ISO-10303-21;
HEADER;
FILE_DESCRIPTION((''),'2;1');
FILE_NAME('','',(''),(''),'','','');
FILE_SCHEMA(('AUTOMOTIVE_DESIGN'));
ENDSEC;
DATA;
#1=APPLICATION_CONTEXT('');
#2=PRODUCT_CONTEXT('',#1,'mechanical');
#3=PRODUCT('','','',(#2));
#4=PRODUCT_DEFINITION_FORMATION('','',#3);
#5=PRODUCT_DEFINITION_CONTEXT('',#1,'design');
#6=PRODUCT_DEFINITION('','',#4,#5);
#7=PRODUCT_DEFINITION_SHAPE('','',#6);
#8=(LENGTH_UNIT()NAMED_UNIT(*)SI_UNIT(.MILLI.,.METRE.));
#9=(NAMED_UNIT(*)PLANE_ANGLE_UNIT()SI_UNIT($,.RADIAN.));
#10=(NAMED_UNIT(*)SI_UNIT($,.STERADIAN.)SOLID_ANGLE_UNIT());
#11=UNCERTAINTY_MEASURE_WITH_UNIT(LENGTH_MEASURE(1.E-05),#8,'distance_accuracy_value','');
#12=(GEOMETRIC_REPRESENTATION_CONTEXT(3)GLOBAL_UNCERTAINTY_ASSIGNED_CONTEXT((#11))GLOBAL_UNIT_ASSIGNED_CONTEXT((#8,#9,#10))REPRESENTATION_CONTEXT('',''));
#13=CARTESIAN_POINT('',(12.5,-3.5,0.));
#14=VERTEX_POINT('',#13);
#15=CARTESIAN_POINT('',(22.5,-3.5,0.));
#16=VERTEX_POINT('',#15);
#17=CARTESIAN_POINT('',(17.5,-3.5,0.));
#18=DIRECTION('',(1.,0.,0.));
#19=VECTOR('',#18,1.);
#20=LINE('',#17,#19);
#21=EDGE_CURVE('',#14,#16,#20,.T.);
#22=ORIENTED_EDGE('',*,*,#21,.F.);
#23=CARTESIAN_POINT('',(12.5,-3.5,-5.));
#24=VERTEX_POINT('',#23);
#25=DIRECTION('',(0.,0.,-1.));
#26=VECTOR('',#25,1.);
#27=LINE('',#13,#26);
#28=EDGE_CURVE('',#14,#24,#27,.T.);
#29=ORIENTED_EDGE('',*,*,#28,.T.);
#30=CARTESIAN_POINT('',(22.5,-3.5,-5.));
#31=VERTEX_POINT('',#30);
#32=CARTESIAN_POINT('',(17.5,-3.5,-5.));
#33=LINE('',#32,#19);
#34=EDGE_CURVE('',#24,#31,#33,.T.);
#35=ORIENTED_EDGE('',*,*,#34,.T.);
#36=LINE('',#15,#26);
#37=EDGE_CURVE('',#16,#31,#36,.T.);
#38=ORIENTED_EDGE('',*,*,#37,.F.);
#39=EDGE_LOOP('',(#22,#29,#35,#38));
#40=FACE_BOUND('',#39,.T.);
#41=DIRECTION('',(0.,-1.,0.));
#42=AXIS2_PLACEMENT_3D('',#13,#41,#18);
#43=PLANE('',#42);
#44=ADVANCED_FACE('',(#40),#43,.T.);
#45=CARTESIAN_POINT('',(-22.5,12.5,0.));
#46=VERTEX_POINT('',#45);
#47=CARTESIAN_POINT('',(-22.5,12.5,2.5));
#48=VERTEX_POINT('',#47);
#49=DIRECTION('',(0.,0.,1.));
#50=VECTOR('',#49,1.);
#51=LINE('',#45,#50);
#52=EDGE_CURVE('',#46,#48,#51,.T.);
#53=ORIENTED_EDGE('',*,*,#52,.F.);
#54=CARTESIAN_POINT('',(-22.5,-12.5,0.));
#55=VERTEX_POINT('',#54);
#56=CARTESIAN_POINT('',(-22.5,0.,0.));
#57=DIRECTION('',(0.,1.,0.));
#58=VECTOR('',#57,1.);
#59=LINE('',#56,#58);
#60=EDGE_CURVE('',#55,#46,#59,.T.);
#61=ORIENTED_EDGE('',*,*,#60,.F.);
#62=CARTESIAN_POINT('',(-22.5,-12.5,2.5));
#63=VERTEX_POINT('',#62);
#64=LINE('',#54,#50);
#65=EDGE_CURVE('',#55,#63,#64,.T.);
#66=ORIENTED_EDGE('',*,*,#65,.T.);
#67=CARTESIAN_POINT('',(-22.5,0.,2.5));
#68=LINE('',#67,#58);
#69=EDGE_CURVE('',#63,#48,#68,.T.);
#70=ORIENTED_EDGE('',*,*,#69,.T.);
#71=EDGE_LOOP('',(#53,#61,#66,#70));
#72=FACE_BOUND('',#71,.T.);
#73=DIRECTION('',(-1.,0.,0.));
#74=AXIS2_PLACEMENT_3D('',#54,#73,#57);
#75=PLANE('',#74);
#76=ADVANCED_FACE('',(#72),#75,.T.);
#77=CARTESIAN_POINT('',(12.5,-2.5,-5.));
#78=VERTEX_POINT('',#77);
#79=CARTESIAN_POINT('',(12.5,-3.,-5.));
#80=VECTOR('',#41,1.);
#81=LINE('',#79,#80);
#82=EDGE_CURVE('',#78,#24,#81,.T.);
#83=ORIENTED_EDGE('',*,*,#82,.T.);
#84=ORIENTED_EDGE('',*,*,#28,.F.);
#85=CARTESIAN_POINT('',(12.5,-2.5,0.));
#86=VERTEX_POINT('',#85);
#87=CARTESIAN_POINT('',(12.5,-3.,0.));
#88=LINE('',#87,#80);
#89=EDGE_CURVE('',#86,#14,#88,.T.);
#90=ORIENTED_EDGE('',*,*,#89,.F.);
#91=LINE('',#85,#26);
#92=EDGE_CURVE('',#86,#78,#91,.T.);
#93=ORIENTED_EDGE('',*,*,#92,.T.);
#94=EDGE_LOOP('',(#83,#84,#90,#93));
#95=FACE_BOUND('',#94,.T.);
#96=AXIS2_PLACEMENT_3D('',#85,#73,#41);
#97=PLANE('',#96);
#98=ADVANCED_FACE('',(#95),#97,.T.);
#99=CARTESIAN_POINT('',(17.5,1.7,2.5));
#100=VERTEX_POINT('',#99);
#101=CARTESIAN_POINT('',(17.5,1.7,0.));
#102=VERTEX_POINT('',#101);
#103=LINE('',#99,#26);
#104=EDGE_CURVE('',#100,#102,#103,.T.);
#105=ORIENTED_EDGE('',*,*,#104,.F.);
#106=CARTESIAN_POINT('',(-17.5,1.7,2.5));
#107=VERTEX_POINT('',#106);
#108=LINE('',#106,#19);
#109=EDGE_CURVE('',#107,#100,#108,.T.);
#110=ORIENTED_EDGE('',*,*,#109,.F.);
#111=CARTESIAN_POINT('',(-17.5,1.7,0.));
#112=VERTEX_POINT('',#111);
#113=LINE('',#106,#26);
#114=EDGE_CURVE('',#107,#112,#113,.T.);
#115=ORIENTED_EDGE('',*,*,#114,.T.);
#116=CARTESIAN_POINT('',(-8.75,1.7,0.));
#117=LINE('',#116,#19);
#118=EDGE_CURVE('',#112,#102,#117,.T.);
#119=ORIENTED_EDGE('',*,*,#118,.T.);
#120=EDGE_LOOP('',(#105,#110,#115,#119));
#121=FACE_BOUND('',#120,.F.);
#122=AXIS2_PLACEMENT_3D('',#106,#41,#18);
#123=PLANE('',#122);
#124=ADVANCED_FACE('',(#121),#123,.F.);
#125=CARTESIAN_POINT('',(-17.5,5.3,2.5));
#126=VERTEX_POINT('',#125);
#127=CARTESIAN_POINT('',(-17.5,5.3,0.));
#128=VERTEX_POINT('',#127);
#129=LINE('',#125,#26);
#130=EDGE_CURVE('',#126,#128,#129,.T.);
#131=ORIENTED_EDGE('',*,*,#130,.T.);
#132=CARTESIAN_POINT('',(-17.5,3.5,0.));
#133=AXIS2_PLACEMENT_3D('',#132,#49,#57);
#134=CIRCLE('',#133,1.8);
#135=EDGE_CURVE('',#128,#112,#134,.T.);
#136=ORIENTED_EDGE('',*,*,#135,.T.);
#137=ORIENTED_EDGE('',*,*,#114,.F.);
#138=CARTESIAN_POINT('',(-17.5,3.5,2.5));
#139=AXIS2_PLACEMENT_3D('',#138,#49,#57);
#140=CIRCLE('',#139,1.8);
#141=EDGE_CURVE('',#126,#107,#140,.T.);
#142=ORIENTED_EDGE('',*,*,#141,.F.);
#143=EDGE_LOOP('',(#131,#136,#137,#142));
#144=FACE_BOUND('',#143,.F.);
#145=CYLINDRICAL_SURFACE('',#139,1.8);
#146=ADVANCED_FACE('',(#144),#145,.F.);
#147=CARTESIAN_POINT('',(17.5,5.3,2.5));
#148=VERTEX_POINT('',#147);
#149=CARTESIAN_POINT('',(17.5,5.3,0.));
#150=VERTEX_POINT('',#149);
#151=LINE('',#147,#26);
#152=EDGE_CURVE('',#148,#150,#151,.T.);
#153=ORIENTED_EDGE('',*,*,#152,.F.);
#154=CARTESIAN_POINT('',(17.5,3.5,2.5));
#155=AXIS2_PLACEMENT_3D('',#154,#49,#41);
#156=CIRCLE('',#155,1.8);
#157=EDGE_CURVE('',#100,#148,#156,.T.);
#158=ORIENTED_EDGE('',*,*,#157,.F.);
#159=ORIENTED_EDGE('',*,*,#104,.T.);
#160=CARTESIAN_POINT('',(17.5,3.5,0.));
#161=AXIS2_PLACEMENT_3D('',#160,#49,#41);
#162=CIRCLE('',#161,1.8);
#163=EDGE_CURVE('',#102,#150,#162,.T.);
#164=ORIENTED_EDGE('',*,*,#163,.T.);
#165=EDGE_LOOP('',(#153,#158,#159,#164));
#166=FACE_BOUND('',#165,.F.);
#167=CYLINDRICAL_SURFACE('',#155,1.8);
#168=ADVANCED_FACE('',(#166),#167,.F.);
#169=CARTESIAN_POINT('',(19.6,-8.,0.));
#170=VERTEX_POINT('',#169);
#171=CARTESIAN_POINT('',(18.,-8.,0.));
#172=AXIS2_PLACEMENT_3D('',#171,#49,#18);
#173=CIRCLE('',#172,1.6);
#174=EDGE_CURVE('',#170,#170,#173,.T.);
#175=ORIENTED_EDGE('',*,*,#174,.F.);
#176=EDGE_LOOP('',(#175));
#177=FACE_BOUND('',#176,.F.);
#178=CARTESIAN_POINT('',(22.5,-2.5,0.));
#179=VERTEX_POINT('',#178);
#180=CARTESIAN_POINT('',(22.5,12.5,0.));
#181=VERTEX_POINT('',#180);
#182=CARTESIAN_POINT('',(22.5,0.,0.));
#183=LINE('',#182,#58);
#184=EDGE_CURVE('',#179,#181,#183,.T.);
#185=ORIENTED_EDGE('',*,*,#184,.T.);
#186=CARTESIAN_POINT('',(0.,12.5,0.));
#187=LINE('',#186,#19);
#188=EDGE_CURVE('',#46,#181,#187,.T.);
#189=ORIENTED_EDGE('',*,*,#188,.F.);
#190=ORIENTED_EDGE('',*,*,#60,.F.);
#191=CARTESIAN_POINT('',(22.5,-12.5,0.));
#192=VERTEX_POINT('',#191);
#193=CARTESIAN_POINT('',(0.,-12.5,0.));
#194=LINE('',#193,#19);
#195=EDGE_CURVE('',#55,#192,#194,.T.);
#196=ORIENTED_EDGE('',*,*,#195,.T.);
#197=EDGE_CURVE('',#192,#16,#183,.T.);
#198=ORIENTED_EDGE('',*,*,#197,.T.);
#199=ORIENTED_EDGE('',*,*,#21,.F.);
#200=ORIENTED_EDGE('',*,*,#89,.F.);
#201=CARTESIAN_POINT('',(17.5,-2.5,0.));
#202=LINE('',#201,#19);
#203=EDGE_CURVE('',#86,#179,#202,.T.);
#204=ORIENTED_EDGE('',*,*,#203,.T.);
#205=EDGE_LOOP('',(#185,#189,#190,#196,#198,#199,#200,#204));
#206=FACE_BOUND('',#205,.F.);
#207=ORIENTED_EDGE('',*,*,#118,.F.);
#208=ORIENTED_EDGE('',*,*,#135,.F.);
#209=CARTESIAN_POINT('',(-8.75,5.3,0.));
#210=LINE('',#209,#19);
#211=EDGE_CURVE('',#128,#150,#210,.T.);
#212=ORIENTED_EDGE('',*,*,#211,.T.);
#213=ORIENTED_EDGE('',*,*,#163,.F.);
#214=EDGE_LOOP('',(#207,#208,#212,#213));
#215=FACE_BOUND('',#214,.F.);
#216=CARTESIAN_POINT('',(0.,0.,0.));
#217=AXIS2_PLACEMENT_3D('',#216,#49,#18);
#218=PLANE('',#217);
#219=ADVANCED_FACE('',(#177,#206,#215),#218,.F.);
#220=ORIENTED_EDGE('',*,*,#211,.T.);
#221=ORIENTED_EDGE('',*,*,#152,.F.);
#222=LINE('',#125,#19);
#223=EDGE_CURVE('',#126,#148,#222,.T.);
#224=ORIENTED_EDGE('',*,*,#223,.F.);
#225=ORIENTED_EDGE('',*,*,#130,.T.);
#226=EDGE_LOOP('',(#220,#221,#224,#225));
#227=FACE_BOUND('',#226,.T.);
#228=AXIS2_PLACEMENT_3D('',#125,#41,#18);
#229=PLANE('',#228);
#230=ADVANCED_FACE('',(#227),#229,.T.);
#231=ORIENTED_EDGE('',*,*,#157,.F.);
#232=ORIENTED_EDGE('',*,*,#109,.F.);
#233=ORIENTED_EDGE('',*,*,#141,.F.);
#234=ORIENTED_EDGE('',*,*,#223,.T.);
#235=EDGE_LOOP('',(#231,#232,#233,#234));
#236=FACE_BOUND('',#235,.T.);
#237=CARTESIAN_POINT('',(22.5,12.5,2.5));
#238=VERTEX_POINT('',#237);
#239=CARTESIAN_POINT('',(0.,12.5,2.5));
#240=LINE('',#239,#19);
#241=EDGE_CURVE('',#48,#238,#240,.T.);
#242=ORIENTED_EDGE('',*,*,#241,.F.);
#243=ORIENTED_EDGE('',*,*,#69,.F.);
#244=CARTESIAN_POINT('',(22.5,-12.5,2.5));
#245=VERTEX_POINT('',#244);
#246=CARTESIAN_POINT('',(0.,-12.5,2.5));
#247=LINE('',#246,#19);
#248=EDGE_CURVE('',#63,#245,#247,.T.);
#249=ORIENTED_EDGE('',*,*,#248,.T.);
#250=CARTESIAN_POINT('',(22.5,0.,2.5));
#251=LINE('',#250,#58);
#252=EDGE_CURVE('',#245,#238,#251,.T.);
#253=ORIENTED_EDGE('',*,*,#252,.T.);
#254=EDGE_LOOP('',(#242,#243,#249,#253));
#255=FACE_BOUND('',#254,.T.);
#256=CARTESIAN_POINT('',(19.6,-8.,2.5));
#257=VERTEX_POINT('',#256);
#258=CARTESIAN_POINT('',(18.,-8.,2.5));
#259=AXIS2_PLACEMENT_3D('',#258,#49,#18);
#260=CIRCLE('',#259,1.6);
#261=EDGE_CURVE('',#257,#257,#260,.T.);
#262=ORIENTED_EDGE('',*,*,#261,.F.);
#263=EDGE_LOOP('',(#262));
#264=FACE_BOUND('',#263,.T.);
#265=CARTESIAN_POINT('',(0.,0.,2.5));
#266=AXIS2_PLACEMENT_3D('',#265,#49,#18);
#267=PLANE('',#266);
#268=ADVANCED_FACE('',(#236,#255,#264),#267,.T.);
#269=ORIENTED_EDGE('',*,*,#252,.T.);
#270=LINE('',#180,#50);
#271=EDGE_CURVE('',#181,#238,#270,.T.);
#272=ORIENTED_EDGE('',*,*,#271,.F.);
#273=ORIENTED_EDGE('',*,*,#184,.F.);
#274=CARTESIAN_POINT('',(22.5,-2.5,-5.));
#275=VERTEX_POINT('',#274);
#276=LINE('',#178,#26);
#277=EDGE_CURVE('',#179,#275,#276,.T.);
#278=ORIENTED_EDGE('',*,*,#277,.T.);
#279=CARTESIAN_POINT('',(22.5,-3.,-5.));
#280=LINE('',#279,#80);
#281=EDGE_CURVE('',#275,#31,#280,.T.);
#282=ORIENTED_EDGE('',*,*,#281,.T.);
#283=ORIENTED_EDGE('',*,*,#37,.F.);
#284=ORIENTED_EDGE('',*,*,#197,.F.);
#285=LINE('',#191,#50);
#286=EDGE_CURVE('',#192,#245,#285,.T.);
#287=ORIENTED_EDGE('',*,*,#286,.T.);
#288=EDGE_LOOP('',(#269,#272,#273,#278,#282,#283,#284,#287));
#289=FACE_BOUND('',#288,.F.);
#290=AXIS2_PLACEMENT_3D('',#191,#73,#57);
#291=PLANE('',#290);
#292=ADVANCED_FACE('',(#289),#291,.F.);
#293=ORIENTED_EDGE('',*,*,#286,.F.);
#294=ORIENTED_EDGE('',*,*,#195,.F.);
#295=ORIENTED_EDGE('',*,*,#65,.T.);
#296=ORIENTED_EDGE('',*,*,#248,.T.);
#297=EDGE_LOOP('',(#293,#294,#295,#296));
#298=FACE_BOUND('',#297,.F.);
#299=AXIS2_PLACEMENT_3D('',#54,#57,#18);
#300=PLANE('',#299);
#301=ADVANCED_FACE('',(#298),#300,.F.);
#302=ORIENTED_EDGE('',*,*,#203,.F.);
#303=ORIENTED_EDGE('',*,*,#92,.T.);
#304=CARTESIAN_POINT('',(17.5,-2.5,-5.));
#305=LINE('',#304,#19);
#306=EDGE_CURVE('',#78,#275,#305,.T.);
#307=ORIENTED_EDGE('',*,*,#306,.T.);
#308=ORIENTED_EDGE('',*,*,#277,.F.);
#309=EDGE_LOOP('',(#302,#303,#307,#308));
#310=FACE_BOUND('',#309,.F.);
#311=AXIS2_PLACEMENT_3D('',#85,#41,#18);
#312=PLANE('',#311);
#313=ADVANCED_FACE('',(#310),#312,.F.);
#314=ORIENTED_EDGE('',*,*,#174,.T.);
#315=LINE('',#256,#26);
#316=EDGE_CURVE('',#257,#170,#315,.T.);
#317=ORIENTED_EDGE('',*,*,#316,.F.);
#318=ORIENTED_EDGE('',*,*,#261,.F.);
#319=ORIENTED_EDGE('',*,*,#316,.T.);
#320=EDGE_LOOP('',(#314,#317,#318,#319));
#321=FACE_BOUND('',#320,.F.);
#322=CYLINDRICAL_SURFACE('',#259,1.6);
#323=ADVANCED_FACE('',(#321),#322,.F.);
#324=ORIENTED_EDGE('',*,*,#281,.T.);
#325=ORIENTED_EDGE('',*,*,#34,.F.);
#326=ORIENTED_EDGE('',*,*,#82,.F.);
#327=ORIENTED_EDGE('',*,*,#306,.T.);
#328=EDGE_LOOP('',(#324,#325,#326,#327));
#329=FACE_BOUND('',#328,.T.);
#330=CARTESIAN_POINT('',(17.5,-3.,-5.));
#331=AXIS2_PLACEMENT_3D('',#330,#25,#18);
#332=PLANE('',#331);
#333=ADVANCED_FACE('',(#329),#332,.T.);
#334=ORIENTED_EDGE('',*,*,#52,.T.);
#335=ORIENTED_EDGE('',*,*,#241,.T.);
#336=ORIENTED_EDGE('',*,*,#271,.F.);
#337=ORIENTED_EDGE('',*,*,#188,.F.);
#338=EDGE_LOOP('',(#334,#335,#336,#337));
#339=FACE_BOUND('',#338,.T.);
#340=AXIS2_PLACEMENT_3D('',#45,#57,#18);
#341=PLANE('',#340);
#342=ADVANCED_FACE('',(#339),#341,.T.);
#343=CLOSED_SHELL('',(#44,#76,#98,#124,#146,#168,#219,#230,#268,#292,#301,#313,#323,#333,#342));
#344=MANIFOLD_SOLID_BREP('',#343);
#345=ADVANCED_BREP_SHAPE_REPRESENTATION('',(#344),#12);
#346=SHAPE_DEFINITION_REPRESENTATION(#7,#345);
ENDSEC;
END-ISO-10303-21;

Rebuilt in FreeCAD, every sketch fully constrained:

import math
import FreeCAD as App
import Part
import Sketcher
from FreeCAD import Vector

doc = App.newDocument("Part")
body = doc.addObject("PartDesign::Body", "Body")

sketch1 = doc.addObject("Sketcher::SketchObject", "Sketch")
body.addObject(sketch1)
sketch1.AttachmentSupport = (doc.XY_Plane, [""])
sketch1.MapMode = "FlatFace"
sketch1.addGeometry(Part.LineSegment(Vector(-22.5, 12.5, 0), Vector(-22.5, -12.5, 0)), False)
sketch1.addGeometry(Part.LineSegment(Vector(-22.5, -12.5, 0), Vector(22.5, -12.5, 0)), False)
sketch1.addGeometry(Part.LineSegment(Vector(22.5, -12.5, 0), Vector(22.5, 12.5, 0)), False)
sketch1.addGeometry(Part.LineSegment(Vector(22.5, 12.5, 0), Vector(-22.5, 12.5, 0)), False)
sketch1.addConstraint(Sketcher.Constraint("Coincident", 0, 2, 1, 1))
sketch1.addConstraint(Sketcher.Constraint("Coincident", 1, 2, 2, 1))
sketch1.addConstraint(Sketcher.Constraint("Coincident", 2, 2, 3, 1))
sketch1.addConstraint(Sketcher.Constraint("Coincident", 3, 2, 0, 1))
sketch1.addConstraint(Sketcher.Constraint("Vertical", 0))
sketch1.addConstraint(Sketcher.Constraint("Horizontal", 1))
sketch1.addConstraint(Sketcher.Constraint("Vertical", 2))
sketch1.addConstraint(Sketcher.Constraint("Horizontal", 3))
sketch1.addConstraint(Sketcher.Constraint("Symmetric", 0, 2, 2, 2, -1, 1))
sketch1.addConstraint(Sketcher.Constraint("DistanceX", 1, 1, 1, 2, 45.0))
sketch1.addConstraint(Sketcher.Constraint("DistanceY", 0, 2, 0, 1, 25.0))
pad1 = doc.addObject("PartDesign::Pad", "Pad")
body.addObject(pad1)
pad1.Profile = sketch1
pad1.Length = 2.5

sketch2 = doc.addObject("Sketcher::SketchObject", "Sketch001")
body.addObject(sketch2)
sketch2.AttachmentSupport = (doc.XY_Plane, [""])
sketch2.MapMode = "FlatFace"
sketch2.AttachmentOffset = App.Placement(Vector(0, 0, 2.5), App.Rotation())
sketch2.addGeometry(Part.Circle(Vector(18, -8, 0), Vector(0, 0, 1), 1.6), False)
sketch2.addGeometry(Part.ArcOfCircle(Part.Circle(Vector(-17.5, 3.5, 0), Vector(0, 0, 1), 1.8), math.radians(90), math.radians(270)), False)
sketch2.addGeometry(Part.LineSegment(Vector(-17.5, 1.7, 0), Vector(17.5, 1.7, 0)), False)
sketch2.addGeometry(Part.ArcOfCircle(Part.Circle(Vector(17.5, 3.5, 0), Vector(0, 0, 1), 1.8), math.radians(-90), math.radians(90)), False)
sketch2.addGeometry(Part.LineSegment(Vector(17.5, 5.3, 0), Vector(-17.5, 5.3, 0)), False)
sketch2.addConstraint(Sketcher.Constraint("Tangent", 1, 2, 2, 1))
sketch2.addConstraint(Sketcher.Constraint("Tangent", 2, 2, 3, 1))
sketch2.addConstraint(Sketcher.Constraint("Tangent", 3, 2, 4, 1))
sketch2.addConstraint(Sketcher.Constraint("Tangent", 4, 2, 1, 1))
sketch2.addConstraint(Sketcher.Constraint("Horizontal", 2))
sketch2.addConstraint(Sketcher.Constraint("Horizontal", 4))
sketch2.addConstraint(Sketcher.Constraint("Diameter", 0, 3.2))
sketch2.addConstraint(Sketcher.Constraint("Radius", 1, 1.8))
sketch2.addConstraint(Sketcher.Constraint("DistanceX", 2, 1, 2, 2, 35.0))
sketch2.addConstraint(Sketcher.Constraint("DistanceX", -1, 1, 0, 3, 18.0))
sketch2.addConstraint(Sketcher.Constraint("DistanceY", 0, 3, -1, 1, 8.0))
sketch2.addConstraint(Sketcher.Constraint("DistanceX", 1, 3, -1, 1, 17.5))
sketch2.addConstraint(Sketcher.Constraint("DistanceY", -1, 1, 1, 3, 3.5))
pocket1 = doc.addObject("PartDesign::Pocket", "Pocket")
body.addObject(pocket1)
pocket1.Profile = sketch2
pocket1.Length = 5

sketch3 = doc.addObject("Sketcher::SketchObject", "Sketch002")
body.addObject(sketch3)
sketch3.AttachmentSupport = (doc.XY_Plane, [""])
sketch3.MapMode = "FlatFace"
sketch3.addGeometry(Part.LineSegment(Vector(12.5, -3.5, 0), Vector(12.5, -2.5, 0)), False)
sketch3.addGeometry(Part.LineSegment(Vector(12.5, -2.5, 0), Vector(22.5, -2.5, 0)), False)
sketch3.addGeometry(Part.LineSegment(Vector(22.5, -2.5, 0), Vector(22.5, -3.5, 0)), False)
sketch3.addGeometry(Part.LineSegment(Vector(22.5, -3.5, 0), Vector(12.5, -3.5, 0)), False)
sketch3.addConstraint(Sketcher.Constraint("Coincident", 0, 2, 1, 1))
sketch3.addConstraint(Sketcher.Constraint("Coincident", 1, 2, 2, 1))
sketch3.addConstraint(Sketcher.Constraint("Coincident", 2, 2, 3, 1))
sketch3.addConstraint(Sketcher.Constraint("Coincident", 3, 2, 0, 1))
sketch3.addConstraint(Sketcher.Constraint("Vertical", 0))
sketch3.addConstraint(Sketcher.Constraint("Horizontal", 1))
sketch3.addConstraint(Sketcher.Constraint("Vertical", 2))
sketch3.addConstraint(Sketcher.Constraint("Horizontal", 3))
sketch3.addConstraint(Sketcher.Constraint("DistanceX", 1, 1, 1, 2, 10.0))
sketch3.addConstraint(Sketcher.Constraint("DistanceY", 0, 1, 0, 2, 1.0))
sketch3.addConstraint(Sketcher.Constraint("DistanceX", -1, 1, 0, 2, 12.5))
sketch3.addConstraint(Sketcher.Constraint("DistanceY", 0, 2, -1, 1, 2.5))
pad2 = doc.addObject("PartDesign::Pad", "Pad001")
body.addObject(pad2)
pad2.Profile = sketch3
pad2.Length = 5
pad2.Reversed = True

doc.recompute()
